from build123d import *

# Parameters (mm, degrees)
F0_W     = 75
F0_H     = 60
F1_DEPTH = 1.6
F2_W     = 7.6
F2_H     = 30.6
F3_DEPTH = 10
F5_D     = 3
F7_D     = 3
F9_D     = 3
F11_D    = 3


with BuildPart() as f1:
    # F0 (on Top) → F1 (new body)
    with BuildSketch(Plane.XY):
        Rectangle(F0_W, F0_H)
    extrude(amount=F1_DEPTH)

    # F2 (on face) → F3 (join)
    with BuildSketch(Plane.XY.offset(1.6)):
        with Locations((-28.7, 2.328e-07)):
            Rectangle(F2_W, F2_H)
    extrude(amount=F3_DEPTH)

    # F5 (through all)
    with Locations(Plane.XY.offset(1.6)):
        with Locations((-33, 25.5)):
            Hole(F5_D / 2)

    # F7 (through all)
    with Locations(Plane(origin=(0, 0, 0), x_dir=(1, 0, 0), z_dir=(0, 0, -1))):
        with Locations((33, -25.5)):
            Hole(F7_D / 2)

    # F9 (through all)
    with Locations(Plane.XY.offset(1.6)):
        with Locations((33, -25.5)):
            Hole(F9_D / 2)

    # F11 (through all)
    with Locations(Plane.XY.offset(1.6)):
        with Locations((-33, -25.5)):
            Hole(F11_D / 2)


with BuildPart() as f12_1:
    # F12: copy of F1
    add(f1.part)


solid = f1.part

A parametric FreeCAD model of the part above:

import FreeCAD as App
import Part
import Sketcher
from FreeCAD import Vector

doc = App.newDocument("Part")
body = doc.addObject("PartDesign::Body", "Body")

# Sketch on XY plane
sketch1 = body.newObject("Sketcher::SketchObject", "Sketch")
sketch1.AttachmentSupport = (doc.getObject("XY_Plane"), [""])
sketch1.MapMode = "FlatFace"
sketch1.addGeometry(Part.LineSegment(Vector(-38, 30, 0), Vector(-38, -30, 0)), False)
sketch1.addGeometry(Part.LineSegment(Vector(-38, -30, 0), Vector(38, -30, 0)), False)
sketch1.addGeometry(Part.LineSegment(Vector(38, -30, 0), Vector(38, 30, 0)), False)
sketch1.addGeometry(Part.LineSegment(Vector(38, 30, 0), Vector(-38, 30, 0)), False)
sketch1.addConstraint(Sketcher.Constraint("Coincident", 0, 2, 1, 1))
sketch1.addConstraint(Sketcher.Constraint("Coincident", 1, 2, 2, 1))
sketch1.addConstraint(Sketcher.Constraint("Coincident", 2, 2, 3, 1))
sketch1.addConstraint(Sketcher.Constraint("Coincident", 3, 2, 0, 1))
sketch1.addConstraint(Sketcher.Constraint("Vertical", 0))
sketch1.addConstraint(Sketcher.Constraint("Horizontal", 1))
sketch1.addConstraint(Sketcher.Constraint("Vertical", 2))
sketch1.addConstraint(Sketcher.Constraint("Horizontal", 3))
sketch1.addConstraint(Sketcher.Constraint("Symmetric", 0, 2, 2, 2, -1, 1))
sketch1.addConstraint(Sketcher.Constraint("DistanceX", 1, 1, 1, 2, 75.0))
sketch1.addConstraint(Sketcher.Constraint("DistanceY", 0, 2, 0, 1, 60.0))
pad1 = body.newObject("PartDesign::Pad", "Pad")
pad1.Profile = sketch1
pad1.Length = 1.6

# Sketch on XY plane
sketch2 = body.newObject("Sketcher::SketchObject", "Sketch001")
sketch2.AttachmentSupport = (doc.getObject("XY_Plane"), [""])
sketch2.MapMode = "FlatFace"
sketch2.AttachmentOffset = App.Placement(Vector(0, 0, 1.6), App.Rotation())
sketch2.addGeometry(Part.LineSegment(Vector(-32, 15, 0), Vector(-32, -15, 0)), False)
sketch2.addGeometry(Part.LineSegment(Vector(-32, -15, 0), Vector(-25, -15, 0)), False)
sketch2.addGeometry(Part.LineSegment(Vector(-25, -15, 0), Vector(-25, 15, 0)), False)
sketch2.addGeometry(Part.LineSegment(Vector(-25, 15, 0), Vector(-32, 15, 0)), False)
sketch2.addConstraint(Sketcher.Constraint("Coincident", 0, 2, 1, 1))
sketch2.addConstraint(Sketcher.Constraint("Coincident", 1, 2, 2, 1))
sketch2.addConstraint(Sketcher.Constraint("Coincident", 2, 2, 3, 1))
sketch2.addConstraint(Sketcher.Constraint("Coincident", 3, 2, 0, 1))
sketch2.addConstraint(Sketcher.Constraint("Vertical", 0))
sketch2.addConstraint(Sketcher.Constraint("Horizontal", 1))
sketch2.addConstraint(Sketcher.Constraint("Vertical", 2))
sketch2.addConstraint(Sketcher.Constraint("Horizontal", 3))
sketch2.addConstraint(Sketcher.Constraint("DistanceX", 1, 1, 1, 2, 7.6))
sketch2.addConstraint(Sketcher.Constraint("DistanceY", 0, 2, 0, 1, 30.6))
sketch2.addConstraint(Sketcher.Constraint("DistanceX", 0, 2, -1, 1, 32.5))
sketch2.addConstraint(Sketcher.Constraint("DistanceY", 0, 2, -1, 1, 15.3))
pad2 = body.newObject("PartDesign::Pad", "Pad001")
pad2.Profile = sketch2
pad2.Length = 10

# Sketch on XY plane
sketch3 = body.newObject("Sketcher::SketchObject", "Sketch002")
sketch3.AttachmentSupport = (doc.getObject("XY_Plane"), [""])
sketch3.MapMode = "FlatFace"
sketch3.AttachmentOffset = App.Placement(Vector(0, 0, 1.6), App.Rotation())
sketch3.addGeometry(Part.Circle(Vector(-33, 25.5, 0), Vector(0, 0, 1), 1.5), False)
sketch3.addConstraint(Sketcher.Constraint("Diameter", 0, 3.0))
sketch3.addConstraint(Sketcher.Constraint("DistanceX", 0, 3, -1, 1, 33.0))
sketch3.addConstraint(Sketcher.Constraint("DistanceY", -1, 1, 0, 3, 25.5))
doc.recompute()
hole = body.newObject("PartDesign::Hole", "Hole")
hole.Profile = sketch3
hole.ThreadType = "None"
hole.Diameter = 3
hole.DepthType = "ThroughAll"

# Sketch on XY plane
sketch4 = body.newObject("Sketcher::SketchObject", "Sketch003")
sketch4.AttachmentSupport = (doc.getObject("XY_Plane"), [""])
sketch4.MapMode = "FlatFace"
sketch4.addGeometry(Part.Circle(Vector(33, 25.5, 0), Vector(0, 0, 1), 1.5), False)
sketch4.addConstraint(Sketcher.Constraint("Diameter", 0, 3.0))
sketch4.addConstraint(Sketcher.Constraint("DistanceX", -1, 1, 0, 3, 33.0))
sketch4.addConstraint(Sketcher.Constraint("DistanceY", -1, 1, 0, 3, 25.5))
doc.recompute()
hole2 = body.newObject("PartDesign::Hole", "Hole001")
hole2.Profile = sketch4
hole2.ThreadType = "None"
hole2.Diameter = 3
hole2.DepthType = "ThroughAll"
hole2.Reversed = True

# Sketch on XY plane
sketch5 = body.newObject("Sketcher::SketchObject", "Sketch004")
sketch5.AttachmentSupport = (doc.getObject("XY_Plane"), [""])
sketch5.MapMode = "FlatFace"
sketch5.AttachmentOffset = App.Placement(Vector(0, 0, 1.6), App.Rotation())
sketch5.addGeometry(Part.Circle(Vector(33, -25.5, 0), Vector(0, 0, 1), 1.5), False)
sketch5.addConstraint(Sketcher.Constraint("Diameter", 0, 3.0))
sketch5.addConstraint(Sketcher.Constraint("DistanceX", -1, 1, 0, 3, 33.0))
sketch5.addConstraint(Sketcher.Constraint("DistanceY", 0, 3, -1, 1, 25.5))
doc.recompute()
hole3 = body.newObject("PartDesign::Hole", "Hole002")
hole3.Profile = sketch5
hole3.ThreadType = "None"
hole3.Diameter = 3
hole3.DepthType = "ThroughAll"

# Sketch on XY plane
sketch6 = body.newObject("Sketcher::SketchObject", "Sketch005")
sketch6.AttachmentSupport = (doc.getObject("XY_Plane"), [""])
sketch6.MapMode = "FlatFace"
sketch6.AttachmentOffset = App.Placement(Vector(0, 0, 1.6), App.Rotation())
sketch6.addGeometry(Part.Circle(Vector(-33, -25.5, 0), Vector(0, 0, 1), 1.5), False)
sketch6.addConstraint(Sketcher.Constraint("Diameter", 0, 3.0))
sketch6.addConstraint(Sketcher.Constraint("DistanceX", 0, 3, -1, 1, 33.0))
sketch6.addConstraint(Sketcher.Constraint("DistanceY", 0, 3, -1, 1, 25.5))
doc.recompute()
hole4 = body.newObject("PartDesign::Hole", "Hole003")
hole4.Profile = sketch6
hole4.ThreadType = "None"
hole4.Diameter = 3
hole4.DepthType = "ThroughAll"
body2 = doc.addObject("PartDesign::Body", "Body001")
doc.recompute()

body2.BaseFeature = body
doc.recompute()
body.Visibility = False

doc.recompute()
